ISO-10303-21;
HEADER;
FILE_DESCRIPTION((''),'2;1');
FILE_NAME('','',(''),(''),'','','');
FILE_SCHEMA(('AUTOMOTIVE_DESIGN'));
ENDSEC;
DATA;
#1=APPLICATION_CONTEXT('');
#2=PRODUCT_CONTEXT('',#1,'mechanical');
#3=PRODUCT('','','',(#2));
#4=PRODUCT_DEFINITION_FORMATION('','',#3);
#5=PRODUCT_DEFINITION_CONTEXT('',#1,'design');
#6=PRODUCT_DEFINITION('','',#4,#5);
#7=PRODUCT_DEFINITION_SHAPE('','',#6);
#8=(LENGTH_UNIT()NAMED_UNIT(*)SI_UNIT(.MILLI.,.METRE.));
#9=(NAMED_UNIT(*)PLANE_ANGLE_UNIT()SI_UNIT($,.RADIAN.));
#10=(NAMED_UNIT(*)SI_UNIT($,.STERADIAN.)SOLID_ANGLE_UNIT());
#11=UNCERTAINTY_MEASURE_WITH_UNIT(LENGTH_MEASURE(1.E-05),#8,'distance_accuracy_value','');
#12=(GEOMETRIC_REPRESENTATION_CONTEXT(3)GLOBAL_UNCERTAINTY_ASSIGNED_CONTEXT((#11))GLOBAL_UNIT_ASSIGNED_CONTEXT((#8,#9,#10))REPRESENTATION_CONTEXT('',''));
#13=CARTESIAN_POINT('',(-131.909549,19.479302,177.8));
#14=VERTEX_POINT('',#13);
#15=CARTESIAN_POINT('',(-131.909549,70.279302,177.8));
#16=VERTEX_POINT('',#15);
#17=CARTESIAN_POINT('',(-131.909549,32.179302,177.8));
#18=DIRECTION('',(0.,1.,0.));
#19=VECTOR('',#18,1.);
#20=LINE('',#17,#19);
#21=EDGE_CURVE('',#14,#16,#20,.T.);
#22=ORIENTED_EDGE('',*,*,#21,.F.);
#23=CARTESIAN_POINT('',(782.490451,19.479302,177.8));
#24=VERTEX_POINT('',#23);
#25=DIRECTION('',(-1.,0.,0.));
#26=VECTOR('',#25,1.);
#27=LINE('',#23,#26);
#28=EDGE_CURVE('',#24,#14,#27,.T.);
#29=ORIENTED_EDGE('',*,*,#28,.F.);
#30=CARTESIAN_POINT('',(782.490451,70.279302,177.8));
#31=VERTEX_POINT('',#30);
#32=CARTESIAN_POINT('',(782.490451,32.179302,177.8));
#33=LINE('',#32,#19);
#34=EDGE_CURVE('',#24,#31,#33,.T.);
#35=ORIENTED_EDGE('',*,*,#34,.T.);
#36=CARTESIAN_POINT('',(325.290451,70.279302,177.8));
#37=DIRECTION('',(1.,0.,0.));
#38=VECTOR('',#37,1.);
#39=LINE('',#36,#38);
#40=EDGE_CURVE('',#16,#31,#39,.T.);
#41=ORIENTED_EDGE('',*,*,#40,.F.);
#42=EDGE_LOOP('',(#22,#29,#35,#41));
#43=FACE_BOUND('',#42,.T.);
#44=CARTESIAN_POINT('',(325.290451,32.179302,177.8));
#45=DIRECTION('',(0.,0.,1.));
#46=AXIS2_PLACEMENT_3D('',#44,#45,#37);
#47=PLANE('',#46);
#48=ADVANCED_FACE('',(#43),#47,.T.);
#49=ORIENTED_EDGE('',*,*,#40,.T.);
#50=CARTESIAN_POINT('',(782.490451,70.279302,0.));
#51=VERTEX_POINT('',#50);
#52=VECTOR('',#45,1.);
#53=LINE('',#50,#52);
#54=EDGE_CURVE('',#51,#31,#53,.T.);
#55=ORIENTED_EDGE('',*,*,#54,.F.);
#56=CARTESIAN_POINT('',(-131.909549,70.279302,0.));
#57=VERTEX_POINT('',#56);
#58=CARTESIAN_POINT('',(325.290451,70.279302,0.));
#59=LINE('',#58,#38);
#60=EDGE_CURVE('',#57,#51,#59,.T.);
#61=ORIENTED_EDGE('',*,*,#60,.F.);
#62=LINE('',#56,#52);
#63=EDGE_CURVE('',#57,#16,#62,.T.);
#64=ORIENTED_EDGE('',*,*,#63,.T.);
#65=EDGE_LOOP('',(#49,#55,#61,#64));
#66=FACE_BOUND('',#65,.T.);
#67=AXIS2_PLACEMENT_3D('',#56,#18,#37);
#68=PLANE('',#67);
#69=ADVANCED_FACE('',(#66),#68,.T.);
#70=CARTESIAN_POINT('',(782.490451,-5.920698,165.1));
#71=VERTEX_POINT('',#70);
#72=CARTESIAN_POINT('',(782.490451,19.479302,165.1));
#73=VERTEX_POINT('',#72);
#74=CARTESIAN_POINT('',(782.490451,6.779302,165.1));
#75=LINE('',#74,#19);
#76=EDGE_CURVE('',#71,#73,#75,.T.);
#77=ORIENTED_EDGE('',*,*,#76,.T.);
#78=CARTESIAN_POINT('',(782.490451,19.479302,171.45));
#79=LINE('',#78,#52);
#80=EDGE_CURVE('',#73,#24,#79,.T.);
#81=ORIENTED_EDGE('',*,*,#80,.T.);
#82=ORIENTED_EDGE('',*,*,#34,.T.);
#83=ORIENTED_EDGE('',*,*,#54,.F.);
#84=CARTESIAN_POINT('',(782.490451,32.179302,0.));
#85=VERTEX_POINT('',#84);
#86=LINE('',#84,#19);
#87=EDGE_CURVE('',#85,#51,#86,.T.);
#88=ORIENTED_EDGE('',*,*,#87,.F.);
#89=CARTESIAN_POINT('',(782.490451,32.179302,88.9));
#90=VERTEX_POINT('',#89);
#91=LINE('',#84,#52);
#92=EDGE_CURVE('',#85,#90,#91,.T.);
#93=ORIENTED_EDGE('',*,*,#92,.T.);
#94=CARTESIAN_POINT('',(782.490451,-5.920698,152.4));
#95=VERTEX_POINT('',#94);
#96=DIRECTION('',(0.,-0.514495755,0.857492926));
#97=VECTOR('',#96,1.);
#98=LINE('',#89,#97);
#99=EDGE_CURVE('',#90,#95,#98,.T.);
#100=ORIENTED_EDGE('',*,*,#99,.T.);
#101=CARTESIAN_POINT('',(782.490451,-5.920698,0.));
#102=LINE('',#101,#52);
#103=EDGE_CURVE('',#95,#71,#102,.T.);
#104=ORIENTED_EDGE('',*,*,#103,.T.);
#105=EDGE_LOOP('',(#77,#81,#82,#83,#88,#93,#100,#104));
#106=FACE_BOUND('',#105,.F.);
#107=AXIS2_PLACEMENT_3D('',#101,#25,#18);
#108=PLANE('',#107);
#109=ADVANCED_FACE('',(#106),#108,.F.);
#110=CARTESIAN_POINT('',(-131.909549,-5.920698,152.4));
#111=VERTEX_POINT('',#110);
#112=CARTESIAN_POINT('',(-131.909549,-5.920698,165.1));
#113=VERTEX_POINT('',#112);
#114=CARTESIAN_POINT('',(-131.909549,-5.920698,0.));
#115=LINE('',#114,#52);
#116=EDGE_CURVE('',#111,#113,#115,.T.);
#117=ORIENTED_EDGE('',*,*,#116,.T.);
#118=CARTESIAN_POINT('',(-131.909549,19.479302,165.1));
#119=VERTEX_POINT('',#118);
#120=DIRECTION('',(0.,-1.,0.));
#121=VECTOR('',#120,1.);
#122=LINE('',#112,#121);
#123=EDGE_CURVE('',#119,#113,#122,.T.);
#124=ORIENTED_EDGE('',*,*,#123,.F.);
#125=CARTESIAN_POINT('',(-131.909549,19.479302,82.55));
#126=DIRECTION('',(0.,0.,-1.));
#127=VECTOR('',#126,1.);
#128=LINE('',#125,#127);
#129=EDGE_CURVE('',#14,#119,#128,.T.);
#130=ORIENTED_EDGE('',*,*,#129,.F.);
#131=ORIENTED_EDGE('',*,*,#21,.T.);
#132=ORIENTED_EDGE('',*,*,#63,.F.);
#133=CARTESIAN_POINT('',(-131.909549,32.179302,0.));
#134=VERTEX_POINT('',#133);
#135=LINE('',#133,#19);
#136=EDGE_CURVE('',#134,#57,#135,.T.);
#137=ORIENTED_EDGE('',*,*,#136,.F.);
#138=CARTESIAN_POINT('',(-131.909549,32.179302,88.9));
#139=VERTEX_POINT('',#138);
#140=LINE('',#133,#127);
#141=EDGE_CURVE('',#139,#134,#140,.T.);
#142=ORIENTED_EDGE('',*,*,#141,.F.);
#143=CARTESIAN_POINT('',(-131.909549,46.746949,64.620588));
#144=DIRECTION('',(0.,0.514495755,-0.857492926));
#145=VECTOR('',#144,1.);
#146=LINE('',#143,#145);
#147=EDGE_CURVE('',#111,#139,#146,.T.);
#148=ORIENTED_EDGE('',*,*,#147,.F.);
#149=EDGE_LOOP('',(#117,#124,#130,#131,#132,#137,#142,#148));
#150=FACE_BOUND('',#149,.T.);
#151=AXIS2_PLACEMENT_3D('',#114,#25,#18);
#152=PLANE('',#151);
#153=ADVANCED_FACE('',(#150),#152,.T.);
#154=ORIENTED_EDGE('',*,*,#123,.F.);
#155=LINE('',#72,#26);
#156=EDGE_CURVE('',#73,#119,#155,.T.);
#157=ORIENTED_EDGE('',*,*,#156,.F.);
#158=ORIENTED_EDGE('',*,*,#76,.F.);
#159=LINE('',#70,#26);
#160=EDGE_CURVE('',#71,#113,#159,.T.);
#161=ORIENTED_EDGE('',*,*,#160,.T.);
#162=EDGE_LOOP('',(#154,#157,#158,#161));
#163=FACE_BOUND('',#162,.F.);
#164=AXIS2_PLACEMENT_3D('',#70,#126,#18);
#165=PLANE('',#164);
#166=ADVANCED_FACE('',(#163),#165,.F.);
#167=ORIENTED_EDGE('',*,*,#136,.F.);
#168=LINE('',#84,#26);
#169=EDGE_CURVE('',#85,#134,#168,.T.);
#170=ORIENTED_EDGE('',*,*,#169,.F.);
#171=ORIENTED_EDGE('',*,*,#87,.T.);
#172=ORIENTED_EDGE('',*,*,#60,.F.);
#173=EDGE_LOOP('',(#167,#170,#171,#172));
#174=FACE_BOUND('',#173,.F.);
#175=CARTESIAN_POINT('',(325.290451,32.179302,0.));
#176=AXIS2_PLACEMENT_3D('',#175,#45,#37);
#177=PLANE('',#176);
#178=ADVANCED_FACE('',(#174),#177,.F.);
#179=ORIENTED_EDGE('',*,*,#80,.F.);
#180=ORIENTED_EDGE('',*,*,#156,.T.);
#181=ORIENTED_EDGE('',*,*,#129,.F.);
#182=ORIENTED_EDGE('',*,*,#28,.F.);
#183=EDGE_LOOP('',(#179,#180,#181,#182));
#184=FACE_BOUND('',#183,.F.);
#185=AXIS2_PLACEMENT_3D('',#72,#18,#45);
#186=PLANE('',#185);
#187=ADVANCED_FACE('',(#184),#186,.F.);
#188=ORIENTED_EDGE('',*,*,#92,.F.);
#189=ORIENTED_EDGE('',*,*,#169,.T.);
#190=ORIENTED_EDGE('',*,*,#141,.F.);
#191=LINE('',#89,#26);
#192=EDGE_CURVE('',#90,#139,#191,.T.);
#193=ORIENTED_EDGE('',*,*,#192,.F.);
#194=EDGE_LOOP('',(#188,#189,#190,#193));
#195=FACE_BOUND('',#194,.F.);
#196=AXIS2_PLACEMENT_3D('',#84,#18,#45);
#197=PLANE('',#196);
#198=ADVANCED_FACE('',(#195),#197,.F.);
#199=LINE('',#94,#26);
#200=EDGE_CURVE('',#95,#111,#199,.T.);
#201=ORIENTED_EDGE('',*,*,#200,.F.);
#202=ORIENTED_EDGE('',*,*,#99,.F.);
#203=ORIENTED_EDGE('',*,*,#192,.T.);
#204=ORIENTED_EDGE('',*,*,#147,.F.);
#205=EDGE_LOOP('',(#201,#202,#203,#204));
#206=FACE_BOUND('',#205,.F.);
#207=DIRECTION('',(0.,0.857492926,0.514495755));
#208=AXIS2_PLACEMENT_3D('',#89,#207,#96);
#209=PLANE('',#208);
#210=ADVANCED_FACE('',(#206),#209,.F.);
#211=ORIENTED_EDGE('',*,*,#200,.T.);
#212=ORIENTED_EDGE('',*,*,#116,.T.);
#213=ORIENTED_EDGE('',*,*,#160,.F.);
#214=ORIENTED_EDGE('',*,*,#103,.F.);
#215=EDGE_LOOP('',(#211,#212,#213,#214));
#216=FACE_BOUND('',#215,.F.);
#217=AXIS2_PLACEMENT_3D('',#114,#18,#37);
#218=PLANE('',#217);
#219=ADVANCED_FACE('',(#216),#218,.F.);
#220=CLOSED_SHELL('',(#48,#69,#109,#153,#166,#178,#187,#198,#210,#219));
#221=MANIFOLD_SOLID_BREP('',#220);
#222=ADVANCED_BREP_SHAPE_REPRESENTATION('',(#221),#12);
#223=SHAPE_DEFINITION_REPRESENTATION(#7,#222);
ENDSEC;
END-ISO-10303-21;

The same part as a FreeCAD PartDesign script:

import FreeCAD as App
import Part
import Sketcher
from FreeCAD import Vector
Q = App.Units.Quantity

doc = App.newDocument("Part")
params = doc.addObject("Spreadsheet::Sheet", "Params")
for row, (alias, value) in enumerate([
    ("sketch1_width", "36 in"),
    ("sketch1_height", "3 in"),
    ("pad1_length", "7 in"),
    ("sketch2_height", "6 in"),
    ("sketch2_width", "1.5 in"),
    ("sketch2_height2", "3.5 in"),
    ("pocket1_length", "84 in"),
    ("sketch3_width", "1 in"),
    ("sketch3_height", "0.5 in"),
    ("pocket2_length", "96 in"),
], start=1):
    params.set(f"A{row}", alias)
    params.set(f"B{row}", "=" + value)
    params.setAlias(f"B{row}", alias)

body = doc.addObject("PartDesign::Body", "Body")

# Sketch on XY plane
sketch1 = body.newObject("Sketcher::SketchObject", "Sketch")
sketch1.AttachmentSupport = (doc.getObject("XY_Plane"), [""])
sketch1.MapMode = "FlatFace"
sketch1.addGeometry([
    Part.LineSegment(Vector(-132, 70, 0), Vector(-132, -6, 0)),
    Part.LineSegment(Vector(-132, -6, 0), Vector(782, -6, 0)),
    Part.LineSegment(Vector(782, -6, 0), Vector(782, 70, 0)),
    Part.LineSegment(Vector(782, 70, 0), Vector(-132, 70, 0)),
], False)
sketch1.addConstraint([
    Sketcher.Constraint("Coincident", 0, 2, 1, 1),
    Sketcher.Constraint("Coincident", 1, 2, 2, 1),
    Sketcher.Constraint("Coincident", 2, 2, 3, 1),
    Sketcher.Constraint("Coincident", 3, 2, 0, 1),
    Sketcher.Constraint("Vertical", 0),
    Sketcher.Constraint("Horizontal", 1),
    Sketcher.Constraint("Vertical", 2),
    Sketcher.Constraint("Horizontal", 3),
    Sketcher.Constraint("DistanceX", 1, 1, 1, 2, Q("36 in")),
    Sketcher.Constraint("DistanceY", 0, 2, 0, 1, Q("3 in")),
    Sketcher.Constraint("DistanceY", -1, 1, 2, 2, 70.279302),
    Sketcher.Constraint("DistanceX", 0, 2, -1, 1, 131.909549),
])
sketch1.setExpression("Constraints[8]", "Params.sketch1_width")
sketch1.setExpression("Constraints[9]", "Params.sketch1_height")
pad1 = body.newObject("PartDesign::Pad", "Pad")
pad1.Profile = sketch1
pad1.setExpression("Length", "Params.pad1_length")

# Sketch on YZ plane
sketch2 = body.newObject("Sketcher::SketchObject", "Sketch001")
sketch2.AttachmentSupport = (doc.getObject("YZ_Plane"), [""])
sketch2.MapMode = "FlatFace"
sketch2.AttachmentOffset = App.Placement(Vector(0, 0, 782.490451), App.Rotation())
sketch2.addGeometry([
    Part.LineSegment(Vector(32, 89, 0), Vector(-6, 152, 0)),
    Part.LineSegment(Vector(-6, 152, 0), Vector(-6, 0, 0)),
    Part.LineSegment(Vector(-6, 0, 0), Vector(32, 0, 0)),
    Part.LineSegment(Vector(32, 0, 0), Vector(32, 89, 0)),
], False)
sketch2.addConstraint([
    Sketcher.Constraint("Coincident", 0, 2, 1, 1),
    Sketcher.Constraint("Coincident", 1, 2, 2, 1),
    Sketcher.Constraint("Coincident", 2, 2, 3, 1),
    Sketcher.Constraint("Coincident", 3, 2, 0, 1),
    Sketcher.Constraint("Vertical", 1),
    Sketcher.Constraint("Horizontal", 2),
    Sketcher.Constraint("Vertical", 3),
    Sketcher.Constraint("PointOnObject", 1, 2, -1),
    Sketcher.Constraint("DistanceY", 1, 2, 1, 1, Q("6 in")),
    Sketcher.Constraint("DistanceX", 2, 1, 2, 2, Q("1.5 in")),
    Sketcher.Constraint("DistanceY", 3, 1, 3, 2, Q("3.5 in")),
    Sketcher.Constraint("DistanceX", 0, 2, -1, 1, 5.920698),
])
sketch2.setExpression("Constraints[8]", "Params.sketch2_height")
sketch2.setExpression("Constraints[9]", "Params.sketch2_width")
sketch2.setExpression("Constraints[10]", "Params.sketch2_height2")
pocket1 = body.newObject("PartDesign::Pocket", "Pocket")
pocket1.Profile = sketch2
pocket1.setExpression("Length", "Params.pocket1_length")

# Sketch on YZ plane
sketch3 = body.newObject("Sketcher::SketchObject", "Sketch002")
sketch3.AttachmentSupport = (doc.getObject("YZ_Plane"), [""])
sketch3.MapMode = "FlatFace"
sketch3.AttachmentOffset = App.Placement(Vector(0, 0, 782.490451), App.Rotation())
sketch3.addGeometry([
    Part.LineSegment(Vector(-6, 178, 0), Vector(-6, 165, 0)),
    Part.LineSegment(Vector(-6, 165, 0), Vector(19, 165, 0)),
    Part.LineSegment(Vector(19, 165, 0), Vector(19, 178, 0)),
    Part.LineSegment(Vector(19, 178, 0), Vector(-6, 178, 0)),
], False)
sketch3.addConstraint([
    Sketcher.Constraint("Coincident", 0, 2, 1, 1),
    Sketcher.Constraint("Coincident", 1, 2, 2, 1),
    Sketcher.Constraint("Coincident", 2, 2, 3, 1),
    Sketcher.Constraint("Coincident", 3, 2, 0, 1),
    Sketcher.Constraint("Vertical", 0),
    Sketcher.Constraint("Horizontal", 1),
    Sketcher.Constraint("Vertical", 2),
    Sketcher.Constraint("Horizontal", 3),
    Sketcher.Constraint("DistanceX", 1, 1, 1, 2, Q("1 in")),
    Sketcher.Constraint("DistanceY", 0, 2, 0, 1, Q("0.5 in")),
    Sketcher.Constraint("DistanceY", -1, 1, 2, 2, Q("7 in")),
    Sketcher.Constraint("DistanceX", 0, 2, -1, 1, 5.920698),
])
sketch3.setExpression("Constraints[8]", "Params.sketch3_width")
sketch3.setExpression("Constraints[9]", "Params.sketch3_height")
pocket2 = body.newObject("PartDesign::Pocket", "Pocket001")
pocket2.Profile = sketch3
pocket2.setExpression("Length", "Params.pocket2_length")

doc.recompute()
